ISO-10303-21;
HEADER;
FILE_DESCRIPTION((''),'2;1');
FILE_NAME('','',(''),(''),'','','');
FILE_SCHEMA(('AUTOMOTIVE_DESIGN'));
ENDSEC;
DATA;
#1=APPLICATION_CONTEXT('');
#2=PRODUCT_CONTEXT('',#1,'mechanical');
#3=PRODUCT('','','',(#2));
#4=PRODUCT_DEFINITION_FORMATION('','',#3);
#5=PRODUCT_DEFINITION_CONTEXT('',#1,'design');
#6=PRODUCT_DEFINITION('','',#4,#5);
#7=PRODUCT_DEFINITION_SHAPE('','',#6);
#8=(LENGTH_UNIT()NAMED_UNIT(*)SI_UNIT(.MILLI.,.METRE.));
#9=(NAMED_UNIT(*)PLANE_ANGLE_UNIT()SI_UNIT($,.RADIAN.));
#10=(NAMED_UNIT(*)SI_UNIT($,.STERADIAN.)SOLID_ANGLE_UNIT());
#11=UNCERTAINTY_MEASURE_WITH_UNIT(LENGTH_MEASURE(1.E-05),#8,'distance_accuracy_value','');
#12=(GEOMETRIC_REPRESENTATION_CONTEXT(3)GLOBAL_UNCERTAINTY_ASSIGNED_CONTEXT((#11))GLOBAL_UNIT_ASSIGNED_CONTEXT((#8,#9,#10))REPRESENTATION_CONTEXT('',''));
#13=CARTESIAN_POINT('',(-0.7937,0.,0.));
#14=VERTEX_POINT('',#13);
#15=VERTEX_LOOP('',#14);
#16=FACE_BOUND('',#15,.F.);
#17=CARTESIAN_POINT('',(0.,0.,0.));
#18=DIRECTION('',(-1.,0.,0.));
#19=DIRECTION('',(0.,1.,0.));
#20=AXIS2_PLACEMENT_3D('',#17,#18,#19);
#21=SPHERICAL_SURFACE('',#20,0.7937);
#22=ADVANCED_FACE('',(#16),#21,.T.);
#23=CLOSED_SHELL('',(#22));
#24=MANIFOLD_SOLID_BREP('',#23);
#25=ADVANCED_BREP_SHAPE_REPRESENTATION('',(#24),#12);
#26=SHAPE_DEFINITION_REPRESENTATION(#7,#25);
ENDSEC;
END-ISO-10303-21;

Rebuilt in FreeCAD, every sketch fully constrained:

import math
import FreeCAD as App
import Part
import Sketcher
from FreeCAD import Vector
Q = App.Units.Quantity

doc = App.newDocument("Part")
body = doc.addObject("PartDesign::Body", "Body")

# Sketch on XY plane
sketch1 = doc.addObject("Sketcher::SketchObject", "Sketch")
body.addObject(sketch1)
sketch1.AttachmentSupport = (doc.XY_Plane, [""])
sketch1.MapMode = "FlatFace"
sketch1.addGeometry([
    Part.LineSegment(Vector(-0.8, 0, 0), Vector(0.8, 0, 0)),
    Part.ArcOfCircle(Part.Circle(Vector(0, 0, 0), Vector(0, 0, 1), 0.8), math.radians(0), math.radians(180)),
], False)
sketch1.addConstraint([
    Sketcher.Constraint("Coincident", 0, 1, 1, 2),
    Sketcher.Constraint("Coincident", 1, 1, 0, 2),
    Sketcher.Constraint("Horizontal", 0),
    Sketcher.Constraint("Coincident", 1, 3, -1, 1),
    Sketcher.Constraint("PointOnObject", 0, 1, -1),
    Sketcher.Constraint("Radius", 1, Q("0.031248 in")),
])
revolution = doc.addObject("PartDesign::Revolution", "Revolution")
body.addObject(revolution)
revolution.Profile = sketch1
revolution.ReferenceAxis = (sketch1, ["H_Axis"])
revolution.Angle = 360

doc.recompute()
